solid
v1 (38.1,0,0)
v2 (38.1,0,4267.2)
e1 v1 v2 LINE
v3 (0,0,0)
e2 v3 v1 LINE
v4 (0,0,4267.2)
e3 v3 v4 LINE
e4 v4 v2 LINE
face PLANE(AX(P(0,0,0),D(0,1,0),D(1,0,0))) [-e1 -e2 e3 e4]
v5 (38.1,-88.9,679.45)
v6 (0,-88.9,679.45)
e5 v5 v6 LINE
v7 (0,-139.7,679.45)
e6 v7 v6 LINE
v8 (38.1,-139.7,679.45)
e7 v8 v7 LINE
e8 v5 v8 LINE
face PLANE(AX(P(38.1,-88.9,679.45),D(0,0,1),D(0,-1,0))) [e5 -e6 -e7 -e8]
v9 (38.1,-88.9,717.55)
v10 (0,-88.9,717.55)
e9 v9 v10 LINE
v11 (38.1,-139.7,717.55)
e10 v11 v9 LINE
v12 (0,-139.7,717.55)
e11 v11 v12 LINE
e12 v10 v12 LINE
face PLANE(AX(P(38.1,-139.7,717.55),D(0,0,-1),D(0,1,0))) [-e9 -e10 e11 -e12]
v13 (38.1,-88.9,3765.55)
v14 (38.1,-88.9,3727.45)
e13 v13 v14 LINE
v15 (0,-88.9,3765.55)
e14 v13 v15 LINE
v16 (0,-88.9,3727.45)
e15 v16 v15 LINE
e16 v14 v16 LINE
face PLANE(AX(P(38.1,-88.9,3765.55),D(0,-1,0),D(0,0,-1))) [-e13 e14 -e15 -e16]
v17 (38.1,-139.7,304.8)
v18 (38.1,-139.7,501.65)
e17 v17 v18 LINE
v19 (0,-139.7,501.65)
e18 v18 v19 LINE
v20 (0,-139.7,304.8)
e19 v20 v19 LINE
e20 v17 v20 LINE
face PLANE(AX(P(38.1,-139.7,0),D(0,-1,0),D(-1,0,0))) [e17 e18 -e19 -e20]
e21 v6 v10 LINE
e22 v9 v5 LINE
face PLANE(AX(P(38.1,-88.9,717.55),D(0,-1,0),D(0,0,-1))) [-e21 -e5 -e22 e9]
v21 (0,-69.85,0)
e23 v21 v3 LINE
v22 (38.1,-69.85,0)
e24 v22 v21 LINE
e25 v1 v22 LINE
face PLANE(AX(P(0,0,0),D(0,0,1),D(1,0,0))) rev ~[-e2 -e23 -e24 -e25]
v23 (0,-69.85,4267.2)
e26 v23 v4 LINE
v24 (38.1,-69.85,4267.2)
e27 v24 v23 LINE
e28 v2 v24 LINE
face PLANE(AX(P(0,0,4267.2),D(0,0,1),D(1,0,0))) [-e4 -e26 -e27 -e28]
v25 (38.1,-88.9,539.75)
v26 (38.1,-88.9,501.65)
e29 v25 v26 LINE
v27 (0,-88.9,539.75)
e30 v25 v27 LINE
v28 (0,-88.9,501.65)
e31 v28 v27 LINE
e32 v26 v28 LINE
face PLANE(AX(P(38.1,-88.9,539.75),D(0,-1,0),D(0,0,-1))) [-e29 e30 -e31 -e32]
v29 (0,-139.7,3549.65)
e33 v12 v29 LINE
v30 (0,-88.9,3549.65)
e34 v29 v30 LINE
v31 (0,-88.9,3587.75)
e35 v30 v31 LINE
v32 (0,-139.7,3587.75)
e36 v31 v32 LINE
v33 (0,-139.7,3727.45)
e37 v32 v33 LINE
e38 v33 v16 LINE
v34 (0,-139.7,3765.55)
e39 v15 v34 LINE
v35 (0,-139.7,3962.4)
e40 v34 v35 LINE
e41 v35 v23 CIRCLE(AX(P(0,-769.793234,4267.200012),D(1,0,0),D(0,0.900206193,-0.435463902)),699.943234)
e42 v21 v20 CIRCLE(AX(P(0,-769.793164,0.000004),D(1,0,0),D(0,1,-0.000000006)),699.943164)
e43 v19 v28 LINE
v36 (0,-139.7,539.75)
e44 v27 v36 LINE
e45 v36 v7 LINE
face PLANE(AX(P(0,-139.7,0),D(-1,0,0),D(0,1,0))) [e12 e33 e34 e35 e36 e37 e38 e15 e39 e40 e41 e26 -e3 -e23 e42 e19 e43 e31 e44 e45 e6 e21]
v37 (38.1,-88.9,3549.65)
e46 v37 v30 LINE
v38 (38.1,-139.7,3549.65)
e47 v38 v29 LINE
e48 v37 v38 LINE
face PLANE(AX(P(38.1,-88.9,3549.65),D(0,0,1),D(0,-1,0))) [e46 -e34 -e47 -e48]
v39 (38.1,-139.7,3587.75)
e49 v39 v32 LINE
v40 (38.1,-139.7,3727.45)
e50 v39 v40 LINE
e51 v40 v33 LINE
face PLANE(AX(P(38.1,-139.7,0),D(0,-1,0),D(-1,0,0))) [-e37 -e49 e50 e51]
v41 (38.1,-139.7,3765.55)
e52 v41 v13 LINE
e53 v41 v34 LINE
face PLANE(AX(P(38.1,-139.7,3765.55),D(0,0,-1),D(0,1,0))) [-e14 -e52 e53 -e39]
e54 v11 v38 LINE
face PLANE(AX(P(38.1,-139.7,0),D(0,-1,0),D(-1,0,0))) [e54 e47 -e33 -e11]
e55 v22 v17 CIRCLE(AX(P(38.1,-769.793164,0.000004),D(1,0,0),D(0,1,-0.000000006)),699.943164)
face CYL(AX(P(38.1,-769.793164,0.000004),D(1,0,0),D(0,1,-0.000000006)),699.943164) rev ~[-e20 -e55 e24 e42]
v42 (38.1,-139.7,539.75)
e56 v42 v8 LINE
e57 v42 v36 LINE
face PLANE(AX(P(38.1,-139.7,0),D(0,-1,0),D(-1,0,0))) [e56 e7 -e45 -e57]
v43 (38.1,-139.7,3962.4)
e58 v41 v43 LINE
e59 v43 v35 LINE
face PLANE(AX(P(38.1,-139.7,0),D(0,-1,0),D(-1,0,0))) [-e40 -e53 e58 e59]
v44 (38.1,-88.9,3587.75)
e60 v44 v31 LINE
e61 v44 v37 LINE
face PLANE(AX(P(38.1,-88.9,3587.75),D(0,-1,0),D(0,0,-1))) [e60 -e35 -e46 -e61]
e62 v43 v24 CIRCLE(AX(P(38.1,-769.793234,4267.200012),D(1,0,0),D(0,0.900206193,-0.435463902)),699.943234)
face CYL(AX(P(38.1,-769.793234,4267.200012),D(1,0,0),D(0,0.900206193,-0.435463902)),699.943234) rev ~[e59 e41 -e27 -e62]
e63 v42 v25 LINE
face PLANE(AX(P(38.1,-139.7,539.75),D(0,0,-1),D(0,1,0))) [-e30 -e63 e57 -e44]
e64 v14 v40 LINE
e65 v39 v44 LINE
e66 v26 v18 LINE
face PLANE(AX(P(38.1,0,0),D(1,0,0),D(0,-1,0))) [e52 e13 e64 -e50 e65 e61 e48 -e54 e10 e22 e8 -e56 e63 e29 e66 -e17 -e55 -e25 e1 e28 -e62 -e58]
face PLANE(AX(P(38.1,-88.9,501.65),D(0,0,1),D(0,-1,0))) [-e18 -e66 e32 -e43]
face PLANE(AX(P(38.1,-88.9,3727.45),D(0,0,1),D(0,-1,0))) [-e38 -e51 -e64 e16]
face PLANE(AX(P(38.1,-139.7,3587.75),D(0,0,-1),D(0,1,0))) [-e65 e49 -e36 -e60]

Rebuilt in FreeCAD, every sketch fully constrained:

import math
import FreeCAD as App
import Part
import Sketcher
from FreeCAD import Vector
Q = App.Units.Quantity


def add_polygon(sketch, points):
    """Adds a closed chain of lines whose ends are joined by coincident constraints."""
    first, n = sketch.GeometryCount, len(points)
    for a, b in zip(points, points[1:] + points[:1]):
        sketch.addGeometry(Part.LineSegment(App.Vector(*a, 0), App.Vector(*b, 0)), False)
    for i in range(n):
        sketch.addConstraint(Sketcher.Constraint("Coincident", first + i, 2, first + (i + 1) % n, 1))

doc = App.newDocument("Part")
body = doc.addObject("PartDesign::Body", "Body")

# Sketch on XY plane
sketch1 = doc.addObject("Sketcher::SketchObject", "Sketch")
body.addObject(sketch1)
sketch1.AttachmentSupport = (doc.XY_Plane, [""])
sketch1.MapMode = "FlatFace"
add_polygon(sketch1, [(38, 0), (0, 0), (0, -140), (38, -140)])  # lines 0-3
sketch1.addConstraint(Sketcher.Constraint("Horizontal", 0))
sketch1.addConstraint(Sketcher.Constraint("Vertical", 1))
sketch1.addConstraint(Sketcher.Constraint("Horizontal", 2))
sketch1.addConstraint(Sketcher.Constraint("Vertical", 3))
sketch1.addConstraint(Sketcher.Constraint("Coincident", 0, 2, -1, 1))
sketch1.addConstraint(Sketcher.Constraint("DistanceX", 0, 2, 0, 1, Q("1.5 in")))
sketch1.addConstraint(Sketcher.Constraint("DistanceY", 1, 2, 1, 1, Q("5.5 in")))
pad1 = doc.addObject("PartDesign::Pad", "Pad")
body.addObject(pad1)
pad1.Profile = sketch1
pad1.Length = Q("168 in")

# Sketch on YZ plane
sketch2 = doc.addObject("Sketcher::SketchObject", "Sketch001")
body.addObject(sketch2)
sketch2.AttachmentSupport = (doc.YZ_Plane, [""])
sketch2.MapMode = "FlatFace"
sketch2.AttachmentOffset = App.Placement(Vector(0, 0, 1.5 * 25.4), App.Rotation())
sketch2.addGeometry(Part.LineSegment(Vector(-140, 0, 0), Vector(-70, 0, 0)), False)  # 0
sketch2.addGeometry(Part.ArcOfCircle(Part.Circle(Vector(-770, 0, 0), Vector(0, 0, 1), 700), math.radians(0), math.radians(26)), False)  # 1
sketch2.addGeometry(Part.LineSegment(Vector(-140, 305, 0), Vector(-140, 0, 0)), False)  # 2
sketch2.addGeometry(Part.ArcOfCircle(Part.Circle(Vector(-770, 4267, 0), Vector(0, 0, 1), 700), math.radians(-26), math.radians(0)), False)  # 3
sketch2.addGeometry(Part.LineSegment(Vector(-70, 4267, 0), Vector(-140, 4267, 0)), False)  # 4
sketch2.addGeometry(Part.LineSegment(Vector(-140, 4267, 0), Vector(-140, 3962, 0)), False)  # 5
add_polygon(sketch2, [(-140, 540), (-140, 502), (-89, 502), (-89, 540)])  # lines 6-9
add_polygon(sketch2, [(-89, 3766), (-140, 3766), (-140, 3727), (-89, 3727)])  # lines 10-13
add_polygon(sketch2, [(-140, 718), (-140, 679), (-89, 679), (-89, 718)])  # lines 14-17
add_polygon(sketch2, [(-89, 3588), (-140, 3588), (-140, 3550), (-89, 3550)])  # lines 18-21
sketch2.addConstraint(Sketcher.Constraint("Coincident", 0, 2, 1, 1))
sketch2.addConstraint(Sketcher.Constraint("Coincident", 1, 2, 2, 1))
sketch2.addConstraint(Sketcher.Constraint("Coincident", 2, 2, 0, 1))
sketch2.addConstraint(Sketcher.Constraint("Coincident", 3, 2, 4, 1))
sketch2.addConstraint(Sketcher.Constraint("Coincident", 4, 2, 5, 1))
sketch2.addConstraint(Sketcher.Constraint("Coincident", 5, 2, 3, 1))
sketch2.addConstraint(Sketcher.Constraint("Horizontal", 0))
sketch2.addConstraint(Sketcher.Constraint("Vertical", 2))
sketch2.addConstraint(Sketcher.Constraint("Horizontal", 4))
sketch2.addConstraint(Sketcher.Constraint("Vertical", 5))
sketch2.addConstraint(Sketcher.Constraint("Vertical", 6))
sketch2.addConstraint(Sketcher.Constraint("Horizontal", 7))
sketch2.addConstraint(Sketcher.Constraint("Vertical", 8))
sketch2.addConstraint(Sketcher.Constraint("Horizontal", 9))
sketch2.addConstraint(Sketcher.Constraint("Horizontal", 10))
sketch2.addConstraint(Sketcher.Constraint("Vertical", 11))
sketch2.addConstraint(Sketcher.Constraint("Horizontal", 12))
sketch2.addConstraint(Sketcher.Constraint("Vertical", 13))
sketch2.addConstraint(Sketcher.Constraint("Vertical", 14))
sketch2.addConstraint(Sketcher.Constraint("Horizontal", 15))
sketch2.addConstraint(Sketcher.Constraint("Vertical", 16))
sketch2.addConstraint(Sketcher.Constraint("Horizontal", 17))
sketch2.addConstraint(Sketcher.Constraint("Horizontal", 18))
sketch2.addConstraint(Sketcher.Constraint("Vertical", 19))
sketch2.addConstraint(Sketcher.Constraint("Horizontal", 20))
sketch2.addConstraint(Sketcher.Constraint("Vertical", 21))
sketch2.addConstraint(Sketcher.Constraint("Equal", 1, 3))
sketch2.addConstraint(Sketcher.Constraint("PointOnObject", 1, 3, -1))
sketch2.addConstraint(Sketcher.Constraint("PointOnObject", 0, 2, -1))
sketch2.addConstraint(Sketcher.Constraint("Vertical", 1, 3, 3, 3))
sketch2.addConstraint(Sketcher.Constraint("Vertical", 2, 2, 4, 2))
sketch2.addConstraint(Sketcher.Constraint("Vertical", 5, 2, 6, 2))
sketch2.addConstraint(Sketcher.Constraint("Vertical", 9, 2, 10, 2))
sketch2.addConstraint(Sketcher.Constraint("Vertical", 8, 2, 12, 2))
sketch2.addConstraint(Sketcher.Constraint("Vertical", 11, 2, 14, 2))
sketch2.addConstraint(Sketcher.Constraint("Vertical", 13, 2, 15, 2))
sketch2.addConstraint(Sketcher.Constraint("Vertical", 17, 2, 18, 2))
sketch2.addConstraint(Sketcher.Constraint("Vertical", 16, 2, 20, 2))
sketch2.addConstraint(Sketcher.Constraint("Equal", 2, 5))
sketch2.addConstraint(Sketcher.Constraint("Equal", 8, 11))
sketch2.addConstraint(Sketcher.Constraint("Equal", 13, 14))
sketch2.addConstraint(Sketcher.Constraint("Equal", 16, 19))
sketch2.addConstraint(Sketcher.Constraint("DistanceX", 7, 1, 7, 2, Q("2 in")))
sketch2.addConstraint(Sketcher.Constraint("DistanceY", 2, 2, 2, 1, Q("12 in")))
sketch2.addConstraint(Sketcher.Constraint("DistanceY", 6, 2, 6, 1, Q("1.5 in")))
sketch2.addConstraint(Sketcher.Constraint("DistanceX", 2, 2, -1, 1, Q("5.5 in")))
sketch2.addConstraint(Sketcher.Constraint("DistanceY", 9, 2, 14, 2, Q("5.5 in")))
sketch2.addConstraint(Sketcher.Constraint("DistanceY", 18, 2, 11, 2, Q("5.5 in")))
sketch2.addConstraint(Sketcher.Constraint("DistanceY", -1, 1, 6, 2, Q("19.75 in")))
sketch2.addConstraint(Sketcher.Constraint("DistanceY", 10, 2, 4, 2, Q("19.75 in")))
sketch2.addConstraint(Sketcher.Constraint("DistanceY", -1, 1, 3, 3, Q("168 in")))
sketch2.addConstraint(Sketcher.Constraint("DistanceX", 0, 1, 0, 2, Q("2.75 in")))
pocket1 = doc.addObject("PartDesign::Pocket", "Pocket")
body.addObject(pocket1)
pocket1.Profile = sketch2
pocket1.Type = "ThroughAll"
pocket1.Midplane = True

doc.recompute()
